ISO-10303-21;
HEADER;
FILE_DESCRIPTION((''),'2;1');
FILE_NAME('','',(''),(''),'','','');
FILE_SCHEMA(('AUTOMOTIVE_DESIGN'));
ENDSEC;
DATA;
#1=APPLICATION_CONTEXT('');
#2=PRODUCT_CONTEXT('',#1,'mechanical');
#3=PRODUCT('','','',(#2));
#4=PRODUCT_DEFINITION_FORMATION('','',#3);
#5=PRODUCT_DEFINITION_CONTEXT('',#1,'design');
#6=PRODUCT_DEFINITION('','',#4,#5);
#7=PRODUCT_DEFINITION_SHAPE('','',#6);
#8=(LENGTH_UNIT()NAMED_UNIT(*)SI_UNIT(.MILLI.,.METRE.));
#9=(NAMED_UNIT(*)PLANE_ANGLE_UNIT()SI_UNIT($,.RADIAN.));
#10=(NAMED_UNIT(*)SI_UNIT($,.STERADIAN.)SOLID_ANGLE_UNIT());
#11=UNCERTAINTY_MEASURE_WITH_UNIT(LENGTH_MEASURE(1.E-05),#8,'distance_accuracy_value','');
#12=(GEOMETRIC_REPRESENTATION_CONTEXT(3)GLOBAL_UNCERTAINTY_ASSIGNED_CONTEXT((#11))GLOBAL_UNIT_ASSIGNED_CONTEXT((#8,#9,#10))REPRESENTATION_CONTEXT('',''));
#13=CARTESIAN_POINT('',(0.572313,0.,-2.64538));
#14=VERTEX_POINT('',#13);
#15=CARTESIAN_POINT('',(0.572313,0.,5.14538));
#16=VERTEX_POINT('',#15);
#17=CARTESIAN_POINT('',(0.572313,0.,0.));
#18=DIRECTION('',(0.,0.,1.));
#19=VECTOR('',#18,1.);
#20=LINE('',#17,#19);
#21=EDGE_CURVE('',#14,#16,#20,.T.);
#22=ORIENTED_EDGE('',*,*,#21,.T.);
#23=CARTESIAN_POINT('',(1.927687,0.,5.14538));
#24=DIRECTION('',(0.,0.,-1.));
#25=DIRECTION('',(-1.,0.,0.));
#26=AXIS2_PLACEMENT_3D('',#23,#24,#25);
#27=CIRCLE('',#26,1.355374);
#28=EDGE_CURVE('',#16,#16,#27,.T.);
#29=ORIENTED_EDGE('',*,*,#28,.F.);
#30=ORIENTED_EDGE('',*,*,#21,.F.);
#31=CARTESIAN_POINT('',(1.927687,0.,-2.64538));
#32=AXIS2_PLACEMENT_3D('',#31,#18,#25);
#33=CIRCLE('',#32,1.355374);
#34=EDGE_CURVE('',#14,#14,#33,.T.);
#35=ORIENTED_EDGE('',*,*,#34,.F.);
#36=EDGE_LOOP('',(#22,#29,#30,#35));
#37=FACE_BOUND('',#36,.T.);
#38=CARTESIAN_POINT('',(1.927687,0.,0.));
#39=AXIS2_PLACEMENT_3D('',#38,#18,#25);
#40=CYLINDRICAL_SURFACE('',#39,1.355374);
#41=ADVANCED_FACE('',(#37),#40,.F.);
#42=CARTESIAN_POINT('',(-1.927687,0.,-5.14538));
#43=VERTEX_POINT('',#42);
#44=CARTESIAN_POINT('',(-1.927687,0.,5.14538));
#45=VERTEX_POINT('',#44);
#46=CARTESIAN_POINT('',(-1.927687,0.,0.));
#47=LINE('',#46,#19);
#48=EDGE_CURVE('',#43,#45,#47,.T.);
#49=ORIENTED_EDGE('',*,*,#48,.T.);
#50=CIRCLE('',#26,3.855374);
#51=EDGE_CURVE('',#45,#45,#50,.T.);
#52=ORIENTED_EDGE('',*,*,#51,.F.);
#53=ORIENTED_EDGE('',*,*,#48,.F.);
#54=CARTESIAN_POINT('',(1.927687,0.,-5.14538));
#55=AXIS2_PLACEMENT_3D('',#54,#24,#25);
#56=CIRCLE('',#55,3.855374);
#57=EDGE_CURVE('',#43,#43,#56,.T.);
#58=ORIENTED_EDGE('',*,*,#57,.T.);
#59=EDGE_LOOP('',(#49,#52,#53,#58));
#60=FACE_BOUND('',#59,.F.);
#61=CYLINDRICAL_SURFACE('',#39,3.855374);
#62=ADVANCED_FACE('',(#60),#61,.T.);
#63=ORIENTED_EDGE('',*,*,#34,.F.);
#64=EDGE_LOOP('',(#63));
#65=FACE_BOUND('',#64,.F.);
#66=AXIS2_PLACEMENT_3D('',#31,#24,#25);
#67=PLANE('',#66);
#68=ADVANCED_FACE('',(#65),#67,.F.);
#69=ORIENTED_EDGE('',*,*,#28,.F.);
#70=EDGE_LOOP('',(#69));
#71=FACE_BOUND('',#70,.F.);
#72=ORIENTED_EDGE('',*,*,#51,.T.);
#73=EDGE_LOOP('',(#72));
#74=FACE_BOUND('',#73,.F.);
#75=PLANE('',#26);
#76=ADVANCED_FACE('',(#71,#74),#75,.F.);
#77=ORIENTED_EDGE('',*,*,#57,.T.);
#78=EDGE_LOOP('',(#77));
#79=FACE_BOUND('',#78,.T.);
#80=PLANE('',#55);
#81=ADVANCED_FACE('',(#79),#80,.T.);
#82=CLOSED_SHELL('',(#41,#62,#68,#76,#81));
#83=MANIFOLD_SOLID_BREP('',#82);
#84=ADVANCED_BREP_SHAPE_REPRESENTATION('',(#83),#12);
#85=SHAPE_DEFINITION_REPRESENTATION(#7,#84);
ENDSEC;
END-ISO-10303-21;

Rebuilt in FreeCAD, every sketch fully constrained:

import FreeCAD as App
import Part
import Sketcher

V = App.Vector
Q = App.Units.Quantity


def faces_at(feature, points):
    """Names of the faces that lie closest to the given points."""
    faces = feature.Shape.Faces
    near = lambda p: min(range(len(faces)), key=lambda i: faces[i].distToShape(Part.Vertex(*p))[0])
    return sorted({f"Face{near(p) + 1}" for p in points})


def add_polygon(sketch, points):
    """Adds a closed chain of lines whose ends are joined by coincident constraints."""
    first, n = sketch.GeometryCount, len(points)
    for a, b in zip(points, points[1:] + points[:1]):
        sketch.addGeometry(Part.LineSegment(App.Vector(*a, 0), App.Vector(*b, 0)), False)
    for i in range(n):
        sketch.addConstraint(Sketcher.Constraint("Coincident", first + i, 2, first + (i + 1) % n, 1))

doc = App.newDocument("Part")
body = doc.addObject("PartDesign::Body", "Body")

# Sketch on XZ plane
sketch1 = body.newObject("Sketcher::SketchObject", "Sketch")
sketch1.AttachmentSupport = (doc.getObject("XZ_Plane"), [""])
sketch1.MapMode = "FlatFace"
add_polygon(sketch1, [(-1.9, 5.1), (-1.9, -5.1), (1.9, -5.1), (1.9, 5.1)])  # lines 0-3
sketch1.addGeometry(Part.LineSegment(V(1.9, 5.1, 0), V(1.9, -5.1, 0)), True)  # axis
sketch1.addConstraint([
    Sketcher.Constraint("Vertical", 0),
    Sketcher.Constraint("Horizontal", 1),
    Sketcher.Constraint("Vertical", 2),
    Sketcher.Constraint("Horizontal", 3),
    Sketcher.Constraint("Vertical", 4),
    Sketcher.Constraint("Coincident", 4, 1, 2, 2),
    Sketcher.Constraint("Symmetric", 0, 2, 2, 2, -1, 1),
    Sketcher.Constraint("Horizontal", 0, 2, 4, 2),
    Sketcher.Constraint("DistanceY", 0, 2, 0, 1, Q("10.29076 mm")),
    Sketcher.Constraint("DistanceX", 1, 1, 1, 2, Q("3.855374 mm")),
])
revolution = body.newObject("PartDesign::Revolution", "Revolution")
revolution.Profile = sketch1
revolution.ReferenceAxis = (sketch1, ["Axis0"])
revolution.Angle = 360
doc.recompute()

thickness = body.newObject("PartDesign::Thickness", "Thickness")
thickness.Base = (revolution, faces_at(revolution, [(1.928, 0, 5.145)]))
thickness.Value = 2.5
thickness.Reversed = True
thickness.Join = "Arc"

doc.recompute()
